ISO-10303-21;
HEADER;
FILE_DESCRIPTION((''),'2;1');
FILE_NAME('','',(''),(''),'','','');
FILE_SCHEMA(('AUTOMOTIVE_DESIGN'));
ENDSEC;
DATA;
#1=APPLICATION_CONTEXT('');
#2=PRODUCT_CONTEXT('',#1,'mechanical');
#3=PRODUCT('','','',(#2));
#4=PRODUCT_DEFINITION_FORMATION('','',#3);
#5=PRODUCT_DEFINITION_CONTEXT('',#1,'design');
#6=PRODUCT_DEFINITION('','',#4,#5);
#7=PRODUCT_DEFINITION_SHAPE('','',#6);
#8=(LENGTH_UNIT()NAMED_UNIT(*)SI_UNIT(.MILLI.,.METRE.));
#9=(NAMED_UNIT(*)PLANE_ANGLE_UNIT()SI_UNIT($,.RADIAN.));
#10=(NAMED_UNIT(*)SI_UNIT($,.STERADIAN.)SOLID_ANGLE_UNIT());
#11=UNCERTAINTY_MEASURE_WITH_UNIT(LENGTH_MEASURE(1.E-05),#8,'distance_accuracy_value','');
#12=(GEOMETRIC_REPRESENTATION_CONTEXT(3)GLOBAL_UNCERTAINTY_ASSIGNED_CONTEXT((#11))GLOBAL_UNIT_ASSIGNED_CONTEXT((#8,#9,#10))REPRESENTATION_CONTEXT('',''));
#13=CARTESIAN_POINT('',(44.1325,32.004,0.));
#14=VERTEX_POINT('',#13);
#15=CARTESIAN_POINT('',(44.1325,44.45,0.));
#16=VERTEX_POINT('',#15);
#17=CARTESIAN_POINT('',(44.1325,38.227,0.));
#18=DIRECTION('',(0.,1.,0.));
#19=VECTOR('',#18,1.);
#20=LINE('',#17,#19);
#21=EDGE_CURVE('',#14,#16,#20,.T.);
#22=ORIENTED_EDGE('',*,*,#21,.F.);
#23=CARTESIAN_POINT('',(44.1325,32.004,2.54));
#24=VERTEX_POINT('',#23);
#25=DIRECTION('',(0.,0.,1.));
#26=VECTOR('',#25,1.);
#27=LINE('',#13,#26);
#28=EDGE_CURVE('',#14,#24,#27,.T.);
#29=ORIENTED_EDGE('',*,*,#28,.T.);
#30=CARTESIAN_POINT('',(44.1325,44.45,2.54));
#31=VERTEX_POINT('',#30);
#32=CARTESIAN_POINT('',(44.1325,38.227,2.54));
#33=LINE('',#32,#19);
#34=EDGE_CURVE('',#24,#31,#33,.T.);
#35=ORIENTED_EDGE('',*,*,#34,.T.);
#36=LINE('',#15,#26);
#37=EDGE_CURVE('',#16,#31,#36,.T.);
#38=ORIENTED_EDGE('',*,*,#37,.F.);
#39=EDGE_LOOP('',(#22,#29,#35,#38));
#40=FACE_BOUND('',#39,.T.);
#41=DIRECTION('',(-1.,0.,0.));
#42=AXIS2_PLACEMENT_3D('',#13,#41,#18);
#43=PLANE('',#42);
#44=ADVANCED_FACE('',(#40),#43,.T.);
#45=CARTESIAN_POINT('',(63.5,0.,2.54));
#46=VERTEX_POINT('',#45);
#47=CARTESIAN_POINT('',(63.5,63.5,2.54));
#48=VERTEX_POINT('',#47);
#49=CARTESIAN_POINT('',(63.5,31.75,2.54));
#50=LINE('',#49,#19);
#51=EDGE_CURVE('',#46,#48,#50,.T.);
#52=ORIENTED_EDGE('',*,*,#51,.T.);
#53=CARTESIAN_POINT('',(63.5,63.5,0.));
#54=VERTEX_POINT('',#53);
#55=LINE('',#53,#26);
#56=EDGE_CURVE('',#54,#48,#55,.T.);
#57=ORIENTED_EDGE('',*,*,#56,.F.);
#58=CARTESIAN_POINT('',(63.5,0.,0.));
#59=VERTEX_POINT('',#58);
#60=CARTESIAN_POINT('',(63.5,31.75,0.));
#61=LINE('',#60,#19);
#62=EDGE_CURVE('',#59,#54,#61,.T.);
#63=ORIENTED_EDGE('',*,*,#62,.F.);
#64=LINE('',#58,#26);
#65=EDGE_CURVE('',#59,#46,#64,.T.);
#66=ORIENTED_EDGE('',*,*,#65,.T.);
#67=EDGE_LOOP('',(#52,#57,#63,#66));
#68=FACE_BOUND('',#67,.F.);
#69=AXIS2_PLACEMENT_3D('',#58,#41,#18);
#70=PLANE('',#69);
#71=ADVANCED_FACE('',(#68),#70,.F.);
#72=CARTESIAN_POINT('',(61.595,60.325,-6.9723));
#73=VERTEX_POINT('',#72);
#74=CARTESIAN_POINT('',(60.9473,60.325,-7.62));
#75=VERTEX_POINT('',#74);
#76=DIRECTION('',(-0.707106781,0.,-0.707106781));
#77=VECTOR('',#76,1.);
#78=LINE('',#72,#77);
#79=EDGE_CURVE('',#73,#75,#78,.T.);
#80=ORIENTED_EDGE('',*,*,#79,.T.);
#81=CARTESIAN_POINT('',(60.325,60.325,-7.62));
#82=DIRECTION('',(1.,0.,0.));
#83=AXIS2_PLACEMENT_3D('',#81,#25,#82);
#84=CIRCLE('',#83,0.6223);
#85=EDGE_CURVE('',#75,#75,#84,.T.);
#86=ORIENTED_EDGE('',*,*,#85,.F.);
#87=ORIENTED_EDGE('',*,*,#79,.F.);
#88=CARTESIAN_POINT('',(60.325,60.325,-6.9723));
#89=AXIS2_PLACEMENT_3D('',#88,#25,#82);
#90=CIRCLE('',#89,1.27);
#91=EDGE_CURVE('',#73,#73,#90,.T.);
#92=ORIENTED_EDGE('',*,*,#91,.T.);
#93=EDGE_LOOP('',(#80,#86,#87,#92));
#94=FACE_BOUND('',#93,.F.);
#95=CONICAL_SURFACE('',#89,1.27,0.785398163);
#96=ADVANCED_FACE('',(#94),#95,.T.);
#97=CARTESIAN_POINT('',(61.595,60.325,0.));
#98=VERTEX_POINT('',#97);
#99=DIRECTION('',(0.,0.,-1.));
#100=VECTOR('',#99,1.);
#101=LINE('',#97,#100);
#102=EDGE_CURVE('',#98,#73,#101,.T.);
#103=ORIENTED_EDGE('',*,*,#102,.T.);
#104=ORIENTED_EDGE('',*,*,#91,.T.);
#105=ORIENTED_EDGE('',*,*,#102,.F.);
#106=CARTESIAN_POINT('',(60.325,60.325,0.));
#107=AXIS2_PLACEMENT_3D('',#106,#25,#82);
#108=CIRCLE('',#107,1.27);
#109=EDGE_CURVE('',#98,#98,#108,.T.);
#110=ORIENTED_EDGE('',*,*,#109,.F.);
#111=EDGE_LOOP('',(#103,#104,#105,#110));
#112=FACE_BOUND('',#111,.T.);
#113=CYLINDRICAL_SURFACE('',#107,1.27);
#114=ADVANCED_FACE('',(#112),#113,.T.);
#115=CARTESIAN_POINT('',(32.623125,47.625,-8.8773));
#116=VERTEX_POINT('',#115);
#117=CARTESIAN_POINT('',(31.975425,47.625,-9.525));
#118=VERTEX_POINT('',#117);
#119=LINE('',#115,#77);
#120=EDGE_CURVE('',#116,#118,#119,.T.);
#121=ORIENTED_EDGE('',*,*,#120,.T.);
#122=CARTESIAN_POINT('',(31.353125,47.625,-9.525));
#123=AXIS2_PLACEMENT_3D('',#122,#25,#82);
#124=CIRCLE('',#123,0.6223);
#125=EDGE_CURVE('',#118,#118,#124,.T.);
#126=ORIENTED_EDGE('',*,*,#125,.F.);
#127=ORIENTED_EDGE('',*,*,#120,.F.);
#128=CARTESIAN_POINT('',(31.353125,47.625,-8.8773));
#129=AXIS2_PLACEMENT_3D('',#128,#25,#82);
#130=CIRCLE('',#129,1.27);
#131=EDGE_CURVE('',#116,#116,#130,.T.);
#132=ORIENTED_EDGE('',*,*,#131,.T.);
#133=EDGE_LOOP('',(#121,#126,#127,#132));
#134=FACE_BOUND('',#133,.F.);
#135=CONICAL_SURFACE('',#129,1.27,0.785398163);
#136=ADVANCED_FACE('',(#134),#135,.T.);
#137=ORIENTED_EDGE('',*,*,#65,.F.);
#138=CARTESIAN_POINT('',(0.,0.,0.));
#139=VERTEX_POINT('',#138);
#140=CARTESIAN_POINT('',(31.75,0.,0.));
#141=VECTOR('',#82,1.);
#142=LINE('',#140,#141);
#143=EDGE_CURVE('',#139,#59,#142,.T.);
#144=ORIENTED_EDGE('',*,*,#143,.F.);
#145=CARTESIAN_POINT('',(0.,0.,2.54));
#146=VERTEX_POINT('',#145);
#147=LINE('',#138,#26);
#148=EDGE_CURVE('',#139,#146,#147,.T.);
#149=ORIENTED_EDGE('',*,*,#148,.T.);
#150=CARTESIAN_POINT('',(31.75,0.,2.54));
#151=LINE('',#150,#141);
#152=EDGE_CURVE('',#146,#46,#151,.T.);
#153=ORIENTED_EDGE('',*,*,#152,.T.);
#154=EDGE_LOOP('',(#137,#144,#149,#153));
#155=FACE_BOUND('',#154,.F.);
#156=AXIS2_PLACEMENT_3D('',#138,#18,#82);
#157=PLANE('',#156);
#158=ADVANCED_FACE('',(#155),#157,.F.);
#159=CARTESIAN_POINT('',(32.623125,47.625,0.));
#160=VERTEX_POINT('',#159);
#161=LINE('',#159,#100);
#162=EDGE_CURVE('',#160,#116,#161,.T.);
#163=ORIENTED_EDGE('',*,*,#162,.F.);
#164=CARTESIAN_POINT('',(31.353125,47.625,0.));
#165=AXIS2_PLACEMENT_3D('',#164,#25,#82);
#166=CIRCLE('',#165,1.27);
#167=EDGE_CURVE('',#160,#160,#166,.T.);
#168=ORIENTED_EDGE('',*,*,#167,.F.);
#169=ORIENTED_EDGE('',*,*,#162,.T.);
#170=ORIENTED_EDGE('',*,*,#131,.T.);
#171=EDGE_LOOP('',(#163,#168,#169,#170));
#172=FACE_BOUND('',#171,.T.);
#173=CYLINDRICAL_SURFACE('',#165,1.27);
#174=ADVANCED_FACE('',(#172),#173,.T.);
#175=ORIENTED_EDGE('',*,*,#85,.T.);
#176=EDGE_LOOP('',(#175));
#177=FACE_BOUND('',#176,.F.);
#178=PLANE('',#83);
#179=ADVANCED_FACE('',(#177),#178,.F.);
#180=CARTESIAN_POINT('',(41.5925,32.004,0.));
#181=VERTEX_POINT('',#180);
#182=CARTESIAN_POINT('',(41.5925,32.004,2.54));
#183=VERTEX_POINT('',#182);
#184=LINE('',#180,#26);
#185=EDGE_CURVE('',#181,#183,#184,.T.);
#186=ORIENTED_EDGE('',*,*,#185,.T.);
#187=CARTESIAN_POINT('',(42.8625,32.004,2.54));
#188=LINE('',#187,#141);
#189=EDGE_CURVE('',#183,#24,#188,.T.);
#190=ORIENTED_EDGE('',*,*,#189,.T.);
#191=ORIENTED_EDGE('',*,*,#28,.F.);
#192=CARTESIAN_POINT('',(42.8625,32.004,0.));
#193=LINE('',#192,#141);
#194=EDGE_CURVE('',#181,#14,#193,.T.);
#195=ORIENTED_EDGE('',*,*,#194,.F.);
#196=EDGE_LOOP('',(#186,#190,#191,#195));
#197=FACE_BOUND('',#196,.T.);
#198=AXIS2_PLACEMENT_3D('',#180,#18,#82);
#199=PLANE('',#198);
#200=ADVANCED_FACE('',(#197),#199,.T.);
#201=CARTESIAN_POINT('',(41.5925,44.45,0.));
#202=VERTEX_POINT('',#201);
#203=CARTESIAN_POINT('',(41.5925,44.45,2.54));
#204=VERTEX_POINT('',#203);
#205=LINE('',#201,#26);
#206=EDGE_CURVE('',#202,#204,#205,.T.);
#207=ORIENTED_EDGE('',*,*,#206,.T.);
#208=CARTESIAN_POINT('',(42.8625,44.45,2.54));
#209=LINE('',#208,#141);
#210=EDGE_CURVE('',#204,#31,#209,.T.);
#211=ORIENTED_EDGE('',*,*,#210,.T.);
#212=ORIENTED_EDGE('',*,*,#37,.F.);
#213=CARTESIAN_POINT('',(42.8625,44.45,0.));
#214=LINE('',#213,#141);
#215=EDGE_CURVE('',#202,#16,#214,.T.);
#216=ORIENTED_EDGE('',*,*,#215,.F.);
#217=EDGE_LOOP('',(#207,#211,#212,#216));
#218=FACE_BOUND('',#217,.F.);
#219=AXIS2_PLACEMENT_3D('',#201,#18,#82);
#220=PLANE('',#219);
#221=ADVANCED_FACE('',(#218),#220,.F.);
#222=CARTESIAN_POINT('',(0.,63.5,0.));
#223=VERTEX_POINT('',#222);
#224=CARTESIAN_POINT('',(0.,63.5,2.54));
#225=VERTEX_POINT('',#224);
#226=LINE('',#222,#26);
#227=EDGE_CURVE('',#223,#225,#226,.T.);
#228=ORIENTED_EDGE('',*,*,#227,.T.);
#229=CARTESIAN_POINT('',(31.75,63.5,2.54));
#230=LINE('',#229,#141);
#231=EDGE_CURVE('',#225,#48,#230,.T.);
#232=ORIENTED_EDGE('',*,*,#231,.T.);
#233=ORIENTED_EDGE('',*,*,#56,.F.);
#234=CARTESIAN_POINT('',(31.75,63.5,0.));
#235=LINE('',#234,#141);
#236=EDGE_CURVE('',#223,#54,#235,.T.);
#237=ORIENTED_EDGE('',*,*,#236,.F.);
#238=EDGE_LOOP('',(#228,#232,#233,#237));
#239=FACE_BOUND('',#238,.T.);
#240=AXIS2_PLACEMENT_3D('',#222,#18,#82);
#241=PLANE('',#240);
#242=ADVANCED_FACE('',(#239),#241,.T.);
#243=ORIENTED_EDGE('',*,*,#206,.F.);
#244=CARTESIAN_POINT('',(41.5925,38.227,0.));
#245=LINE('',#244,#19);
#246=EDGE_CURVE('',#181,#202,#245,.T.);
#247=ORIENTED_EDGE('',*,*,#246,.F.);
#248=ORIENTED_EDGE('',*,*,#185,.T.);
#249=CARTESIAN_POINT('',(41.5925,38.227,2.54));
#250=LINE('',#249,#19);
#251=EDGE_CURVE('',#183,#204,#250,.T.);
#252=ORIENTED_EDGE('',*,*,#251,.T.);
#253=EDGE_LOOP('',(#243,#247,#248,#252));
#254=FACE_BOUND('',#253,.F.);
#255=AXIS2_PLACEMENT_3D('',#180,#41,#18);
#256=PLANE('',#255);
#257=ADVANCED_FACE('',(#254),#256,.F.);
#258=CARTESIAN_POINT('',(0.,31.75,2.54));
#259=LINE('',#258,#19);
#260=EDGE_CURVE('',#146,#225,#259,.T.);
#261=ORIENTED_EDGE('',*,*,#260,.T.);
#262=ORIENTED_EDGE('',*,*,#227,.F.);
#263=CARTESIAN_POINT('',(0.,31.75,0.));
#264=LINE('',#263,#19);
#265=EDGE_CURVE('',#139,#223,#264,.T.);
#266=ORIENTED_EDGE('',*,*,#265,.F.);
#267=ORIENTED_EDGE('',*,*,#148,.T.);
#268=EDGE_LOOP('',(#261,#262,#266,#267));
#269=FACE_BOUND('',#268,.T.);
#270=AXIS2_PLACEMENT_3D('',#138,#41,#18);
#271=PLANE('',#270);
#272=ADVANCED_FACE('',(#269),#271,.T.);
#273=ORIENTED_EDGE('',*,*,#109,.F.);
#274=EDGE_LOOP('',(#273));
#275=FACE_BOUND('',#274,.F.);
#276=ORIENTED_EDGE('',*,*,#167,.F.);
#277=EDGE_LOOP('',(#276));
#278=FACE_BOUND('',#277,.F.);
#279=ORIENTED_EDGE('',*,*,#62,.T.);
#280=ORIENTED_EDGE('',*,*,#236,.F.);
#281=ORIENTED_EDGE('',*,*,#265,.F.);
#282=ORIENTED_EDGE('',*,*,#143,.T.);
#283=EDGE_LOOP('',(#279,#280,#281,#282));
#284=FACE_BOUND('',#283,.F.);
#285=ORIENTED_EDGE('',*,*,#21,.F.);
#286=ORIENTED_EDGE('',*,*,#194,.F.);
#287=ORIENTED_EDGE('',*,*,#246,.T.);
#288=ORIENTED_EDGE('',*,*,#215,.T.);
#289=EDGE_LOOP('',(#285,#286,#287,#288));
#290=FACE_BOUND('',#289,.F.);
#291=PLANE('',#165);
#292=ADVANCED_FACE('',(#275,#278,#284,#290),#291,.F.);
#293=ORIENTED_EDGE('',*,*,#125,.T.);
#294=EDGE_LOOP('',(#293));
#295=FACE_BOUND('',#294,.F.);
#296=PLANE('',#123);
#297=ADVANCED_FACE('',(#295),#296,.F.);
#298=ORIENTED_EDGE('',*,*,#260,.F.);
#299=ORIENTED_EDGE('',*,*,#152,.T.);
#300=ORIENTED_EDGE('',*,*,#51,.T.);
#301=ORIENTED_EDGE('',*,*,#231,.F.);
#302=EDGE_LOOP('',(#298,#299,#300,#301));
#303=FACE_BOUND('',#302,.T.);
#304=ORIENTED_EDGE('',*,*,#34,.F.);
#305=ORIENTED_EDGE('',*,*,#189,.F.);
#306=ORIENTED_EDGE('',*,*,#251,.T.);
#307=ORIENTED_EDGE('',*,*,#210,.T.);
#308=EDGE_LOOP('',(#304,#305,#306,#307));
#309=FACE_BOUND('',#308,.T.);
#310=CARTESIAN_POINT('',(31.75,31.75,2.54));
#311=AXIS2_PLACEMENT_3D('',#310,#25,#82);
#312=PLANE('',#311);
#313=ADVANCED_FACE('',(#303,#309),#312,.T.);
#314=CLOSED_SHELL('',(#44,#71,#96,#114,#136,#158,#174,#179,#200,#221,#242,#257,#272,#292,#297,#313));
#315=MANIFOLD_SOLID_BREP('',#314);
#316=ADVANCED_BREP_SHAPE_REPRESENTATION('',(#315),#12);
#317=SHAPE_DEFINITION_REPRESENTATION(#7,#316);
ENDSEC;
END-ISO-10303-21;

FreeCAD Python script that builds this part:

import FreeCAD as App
import Part
import Sketcher
from FreeCAD import Vector
Q = App.Units.Quantity


def edges_at(feature, points):
    """Names of the edges that pass closest to the given points."""
    edges = feature.Shape.Edges
    near = lambda p: min(range(len(edges)), key=lambda i: edges[i].distToShape(Part.Vertex(*p))[0])
    return sorted({f"Edge{near(p) + 1}" for p in points})

doc = App.newDocument("Part")
body = doc.addObject("PartDesign::Body", "Body")

sketch1 = doc.addObject("Sketcher::SketchObject", "Sketch")
body.addObject(sketch1)
sketch1.AttachmentSupport = (doc.XY_Plane, [""])
sketch1.MapMode = "FlatFace"
sketch1.addGeometry(Part.LineSegment(Vector(0, 63.5, 0), Vector(0, 0, 0)), False)
sketch1.addGeometry(Part.LineSegment(Vector(0, 0, 0), Vector(63.5, 0, 0)), False)
sketch1.addGeometry(Part.LineSegment(Vector(63.5, 0, 0), Vector(63.5, 63.5, 0)), False)
sketch1.addGeometry(Part.LineSegment(Vector(63.5, 63.5, 0), Vector(0, 63.5, 0)), False)
sketch1.addGeometry(Part.LineSegment(Vector(44.1, 32, 0), Vector(41.6, 32, 0)), False)
sketch1.addGeometry(Part.LineSegment(Vector(41.6, 32, 0), Vector(41.6, 44.5, 0)), False)
sketch1.addGeometry(Part.LineSegment(Vector(41.6, 44.5, 0), Vector(44.1, 44.5, 0)), False)
sketch1.addGeometry(Part.LineSegment(Vector(44.1, 44.5, 0), Vector(44.1, 32, 0)), False)
sketch1.addGeometry(Part.Circle(Vector(31.4, 47.6, 0), Vector(0, 0, 1), 1.3), False)
sketch1.addGeometry(Part.Circle(Vector(60.3, 60.3, 0), Vector(0, 0, 1), 1.3), False)
sketch1.addConstraint(Sketcher.Constraint("Coincident", 0, 2, 1, 1))
sketch1.addConstraint(Sketcher.Constraint("Coincident", 1, 2, 2, 1))
sketch1.addConstraint(Sketcher.Constraint("Coincident", 2, 2, 3, 1))
sketch1.addConstraint(Sketcher.Constraint("Coincident", 3, 2, 0, 1))
sketch1.addConstraint(Sketcher.Constraint("Coincident", 4, 2, 5, 1))
sketch1.addConstraint(Sketcher.Constraint("Coincident", 5, 2, 6, 1))
sketch1.addConstraint(Sketcher.Constraint("Coincident", 6, 2, 7, 1))
sketch1.addConstraint(Sketcher.Constraint("Coincident", 7, 2, 4, 1))
sketch1.addConstraint(Sketcher.Constraint("Vertical", 0))
sketch1.addConstraint(Sketcher.Constraint("Horizontal", 1))
sketch1.addConstraint(Sketcher.Constraint("Vertical", 2))
sketch1.addConstraint(Sketcher.Constraint("Horizontal", 3))
sketch1.addConstraint(Sketcher.Constraint("Horizontal", 4))
sketch1.addConstraint(Sketcher.Constraint("Vertical", 5))
sketch1.addConstraint(Sketcher.Constraint("Horizontal", 6))
sketch1.addConstraint(Sketcher.Constraint("Vertical", 7))
sketch1.addConstraint(Sketcher.Constraint("Coincident", 0, 2, -1, 1))
sketch1.addConstraint(Sketcher.Constraint("Equal", 8, 9))
sketch1.addConstraint(Sketcher.Constraint("Equal", 3, 0))
sketch1.addConstraint(Sketcher.Constraint("Diameter", 8, Q("0.1 in")))
sketch1.addConstraint(Sketcher.Constraint("DistanceX", 1, 1, 1, 2, Q("2.5 in")))
sketch1.addConstraint(Sketcher.Constraint("DistanceX", 4, 2, 4, 1, Q("0.1 in")))
sketch1.addConstraint(Sketcher.Constraint("DistanceY", 5, 1, 5, 2, Q("0.49 in")))
sketch1.addConstraint(Sketcher.Constraint("DistanceY", 8, 3, 9, 3, Q("0.5 in")))
sketch1.addConstraint(Sketcher.Constraint("DistanceY", -1, 1, 4, 2, Q("1.26 in")))
sketch1.addConstraint(Sketcher.Constraint("DistanceX", -1, 1, 8, 3, Q("1.234375 in")))
sketch1.addConstraint(Sketcher.Constraint("DistanceY", -1, 1, 8, 3, Q("1.875 in")))
sketch1.addConstraint(Sketcher.Constraint("DistanceX", -1, 1, 9, 3, Q("2.375 in")))
sketch1.addConstraint(Sketcher.Constraint("DistanceX", -1, 1, 4, 2, Q("1.6375 in")))
pad1 = doc.addObject("PartDesign::Pad", "Pad")
body.addObject(pad1)
pad1.Profile = sketch1
pad1.Length = Q("0.1 in")

sketch2 = doc.addObject("Sketcher::SketchObject", "Sketch001")
body.addObject(sketch2)
sketch2.AttachmentSupport = (doc.XY_Plane, [""])
sketch2.MapMode = "FlatFace"
sketch2.addGeometry(Part.Circle(Vector(31.4, 47.6, 0), Vector(0, 0, 1), 1.3), False)
sketch2.addGeometry(Part.Circle(Vector(60.3, 60.3, 0), Vector(0, 0, 1), 1.3), False)
sketch2.addConstraint(Sketcher.Constraint("Equal", 0, 1))
sketch2.addConstraint(Sketcher.Constraint("Diameter", 0, Q("0.1 in")))
sketch2.addConstraint(Sketcher.Constraint("DistanceY", 0, 3, 1, 3, Q("0.5 in")))
sketch2.addConstraint(Sketcher.Constraint("DistanceX", -1, 1, 0, 3, Q("1.234375 in")))
sketch2.addConstraint(Sketcher.Constraint("DistanceY", -1, 1, 0, 3, Q("1.875 in")))
sketch2.addConstraint(Sketcher.Constraint("DistanceX", -1, 1, 1, 3, Q("2.375 in")))
pad2 = doc.addObject("PartDesign::Pad", "Pad001")
body.addObject(pad2)
pad2.Profile = sketch2
pad2.Type = "TwoLengths"
pad2.Length = Q("0.1 in")
pad2.Length2 = Q("0.3 in")

sketch3 = doc.addObject("Sketcher::SketchObject", "Sketch002")
body.addObject(sketch3)
sketch3.AttachmentSupport = (doc.XY_Plane, [""])
sketch3.MapMode = "FlatFace"
sketch3.addGeometry(Part.Circle(Vector(31.4, 47.6, 0), Vector(0, 0, 1), 1.3), False)
sketch3.addConstraint(Sketcher.Constraint("Diameter", 0, Q("0.1 in")))
sketch3.addConstraint(Sketcher.Constraint("DistanceX", -1, 1, 0, 3, Q("1.234375 in")))
sketch3.addConstraint(Sketcher.Constraint("DistanceY", -1, 1, 0, 3, Q("1.875 in")))
pad3 = doc.addObject("PartDesign::Pad", "Pad002")
body.addObject(pad3)
pad3.Profile = sketch3
pad3.Length = Q("0.375 in")
pad3.Reversed = True
doc.recompute()

chamfer = doc.addObject("PartDesign::Chamfer", "Chamfer")
body.addObject(chamfer)
chamfer.Base = (pad3, edges_at(pad3, [(59.055, 60.325, -7.62), (30.083, 47.625, -9.525)]))
chamfer.Size = Q("0.0255 in")

doc.recompute()
